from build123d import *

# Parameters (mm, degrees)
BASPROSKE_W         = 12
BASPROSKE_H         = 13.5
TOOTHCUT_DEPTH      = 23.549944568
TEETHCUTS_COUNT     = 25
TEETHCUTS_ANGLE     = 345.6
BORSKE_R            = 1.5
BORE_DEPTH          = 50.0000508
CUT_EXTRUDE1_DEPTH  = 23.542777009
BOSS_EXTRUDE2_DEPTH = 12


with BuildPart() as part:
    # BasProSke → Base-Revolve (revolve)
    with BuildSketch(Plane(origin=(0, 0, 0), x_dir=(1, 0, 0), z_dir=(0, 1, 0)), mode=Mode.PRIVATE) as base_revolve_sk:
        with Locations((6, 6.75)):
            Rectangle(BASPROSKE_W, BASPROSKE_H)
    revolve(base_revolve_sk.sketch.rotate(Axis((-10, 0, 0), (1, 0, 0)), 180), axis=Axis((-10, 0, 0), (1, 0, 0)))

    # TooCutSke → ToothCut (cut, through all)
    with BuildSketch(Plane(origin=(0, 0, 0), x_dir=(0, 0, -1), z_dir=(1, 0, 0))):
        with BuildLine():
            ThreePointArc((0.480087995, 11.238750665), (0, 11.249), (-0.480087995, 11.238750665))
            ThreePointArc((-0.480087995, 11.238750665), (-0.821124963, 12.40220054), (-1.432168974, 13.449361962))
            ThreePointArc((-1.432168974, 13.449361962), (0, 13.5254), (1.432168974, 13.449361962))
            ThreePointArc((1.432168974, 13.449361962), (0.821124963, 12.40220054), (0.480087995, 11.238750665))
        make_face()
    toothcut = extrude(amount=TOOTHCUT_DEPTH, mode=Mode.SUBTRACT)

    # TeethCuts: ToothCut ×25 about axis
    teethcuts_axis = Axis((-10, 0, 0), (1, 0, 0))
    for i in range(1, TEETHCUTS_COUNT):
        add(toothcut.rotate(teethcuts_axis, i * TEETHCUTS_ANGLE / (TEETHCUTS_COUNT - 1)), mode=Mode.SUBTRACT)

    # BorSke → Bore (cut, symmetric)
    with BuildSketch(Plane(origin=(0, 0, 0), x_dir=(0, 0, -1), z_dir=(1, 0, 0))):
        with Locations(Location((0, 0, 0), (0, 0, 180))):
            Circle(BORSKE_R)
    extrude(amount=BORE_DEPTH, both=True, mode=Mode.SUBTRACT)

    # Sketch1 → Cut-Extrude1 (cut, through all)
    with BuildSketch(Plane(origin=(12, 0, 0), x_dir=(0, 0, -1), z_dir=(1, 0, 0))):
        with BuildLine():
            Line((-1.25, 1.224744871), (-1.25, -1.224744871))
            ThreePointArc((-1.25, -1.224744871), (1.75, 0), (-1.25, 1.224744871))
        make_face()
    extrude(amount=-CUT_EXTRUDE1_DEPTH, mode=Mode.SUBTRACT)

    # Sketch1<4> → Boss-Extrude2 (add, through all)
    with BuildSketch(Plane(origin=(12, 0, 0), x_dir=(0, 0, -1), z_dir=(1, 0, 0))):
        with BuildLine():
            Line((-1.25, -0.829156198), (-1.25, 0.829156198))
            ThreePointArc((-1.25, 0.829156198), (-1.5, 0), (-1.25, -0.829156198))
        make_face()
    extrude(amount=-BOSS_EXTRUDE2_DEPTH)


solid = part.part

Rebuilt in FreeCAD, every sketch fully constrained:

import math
import FreeCAD as App
import Part
import Sketcher


def add_polygon(sketch, points):
    """Adds a closed chain of lines whose ends are joined by coincident constraints."""
    first, n = sketch.GeometryCount, len(points)
    for a, b in zip(points, points[1:] + points[:1]):
        sketch.addGeometry(Part.LineSegment(App.Vector(*a, 0), App.Vector(*b, 0)), False)
    for i in range(n):
        sketch.addConstraint(Sketcher.Constraint("Coincident", first + i, 2, first + (i + 1) % n, 1))

doc = App.newDocument("Part")
params = doc.addObject("Spreadsheet::Sheet", "Params")
for row, (alias, value) in enumerate([
    ("sketch1_width", "12 mm"),
    ("sketch1_height", "13.5 mm"),
    ("revolution_angle", "360 deg"),
    ("sketch2_radius", "5 mm"),
    ("sketch3_diameter", "3 mm"),
    ("pocket2_length", "100.000102 mm"),
    ("sketch4_radius", "1.75 mm"),
    ("sketch5_radius", "1.5 mm"),
    ("pad1_length", "12 mm"),
], start=1):
    params.set(f"A{row}", alias)
    params.set(f"B{row}", "=" + value)
    params.setAlias(f"B{row}", alias)

body = doc.addObject("PartDesign::Body", "Body")

# Sketch on XZ plane
sketch1 = body.newObject("Sketcher::SketchObject", "Sketch")
sketch1.AttachmentSupport = (doc.getObject("XZ_Plane"), [""])
sketch1.MapMode = "FlatFace"
add_polygon(sketch1, [(0, -13.5), (0, 0), (12, 0), (12, -13.5)])  # lines 0-3
sketch1.addConstraint([
    Sketcher.Constraint("Vertical", 0),
    Sketcher.Constraint("Horizontal", 1),
    Sketcher.Constraint("Vertical", 2),
    Sketcher.Constraint("Horizontal", 3),
    Sketcher.Constraint("Coincident", 0, 2, -1, 1),
    Sketcher.Constraint("DistanceX", 1, 1, 1, 2, 12.0),
    Sketcher.Constraint("DistanceY", 0, 1, 0, 2, 13.5),
])
sketch1.setExpression("Constraints[9]", "Params.sketch1_width")
sketch1.setExpression("Constraints[10]", "Params.sketch1_height")
revolution = body.newObject("PartDesign::Revolution", "Revolution")
revolution.Profile = sketch1
revolution.ReferenceAxis = (sketch1, ["H_Axis"])
revolution.setExpression("Angle", "Params.revolution_angle")

# Sketch on YZ plane
sketch2 = body.newObject("Sketcher::SketchObject", "Sketch001")
sketch2.AttachmentSupport = (doc.getObject("YZ_Plane"), [""])
sketch2.MapMode = "FlatFace"
sketch2.addGeometry([
    Part.ArcOfCircle(Part.Circle(App.Vector(0, 0, 0), App.Vector(0, 0, 1), 11.249), math.radians(-2.446028), math.radians(2.446028)),
    Part.ArcOfCircle(Part.Circle(App.Vector(10.424401, -5.413326, 0), App.Vector(0, 0, 1), 5), math.radians(52.771714), math.radians(80.626478)),
    Part.ArcOfCircle(Part.Circle(App.Vector(0, 0, 0), App.Vector(0, 0, 1), 13.5254), math.radians(-6.078294), math.radians(6.078294)),
    Part.ArcOfCircle(Part.Circle(App.Vector(10.424401, 5.413326, 0), App.Vector(0, 0, 1), 5), math.radians(-80.626478), math.radians(-52.771714)),
], False)
sketch2.addConstraint([
    Sketcher.Constraint("Coincident", 0, 1, 1, 2),
    Sketcher.Constraint("Coincident", 1, 1, 2, 1),
    Sketcher.Constraint("Coincident", 2, 2, 3, 2),
    Sketcher.Constraint("Coincident", 3, 1, 0, 2),
    Sketcher.Constraint("Coincident", 0, 3, -1, 1),
    Sketcher.Constraint("Coincident", 2, 3, -1, 1),
    Sketcher.Constraint("Equal", 1, 3),
    Sketcher.Constraint("Symmetric", 1, 3, 3, 3, -1),
    Sketcher.Constraint("Radius", 1, 5.0),
    Sketcher.Constraint("Radius", 0, 11.249),
    Sketcher.Constraint("Radius", 2, 13.5254),
    Sketcher.Constraint("DistanceX", -1, 1, 1, 3, 10.424401),
    Sketcher.Constraint("DistanceX", -1, 1, 0, 1, 11.238751),
])
sketch2.setExpression("Constraints[8]", "Params.sketch2_radius")
pocket1 = body.newObject("PartDesign::Pocket", "Pocket")
pocket1.Profile = sketch2
pocket1.Type = "ThroughAll"
pocket1.Reversed = True
doc.recompute()

polarpattern = body.newObject("PartDesign::PolarPattern", "PolarPattern")
polarpattern.Originals = [pocket1]
polarpattern.Axis = (doc.getObject("X_Axis"), [""])
polarpattern.Angle = 360
polarpattern.Occurrences = 25
body.Tip = polarpattern

# Sketch on YZ plane
sketch3 = body.newObject("Sketcher::SketchObject", "Sketch002")
sketch3.AttachmentSupport = (doc.getObject("YZ_Plane"), [""])
sketch3.MapMode = "FlatFace"
sketch3.addGeometry(Part.Circle(App.Vector(0, 0, 0), App.Vector(0, 0, 1), 1.5), False)
sketch3.addConstraint([
    Sketcher.Constraint("Coincident", 0, 3, -1, 1),
    Sketcher.Constraint("Diameter", 0, 3.0),
])
sketch3.setExpression("Constraints[1]", "Params.sketch3_diameter")
pocket2 = body.newObject("PartDesign::Pocket", "Pocket001")
pocket2.Profile = sketch3
pocket2.setExpression("Length", "Params.pocket2_length")
pocket2.Midplane = True

# Sketch on YZ plane
sketch4 = body.newObject("Sketcher::SketchObject", "Sketch003")
sketch4.AttachmentSupport = (doc.getObject("YZ_Plane"), [""])
sketch4.MapMode = "FlatFace"
sketch4.AttachmentOffset = App.Placement(App.Vector(0, 0, 12), App.Rotation())
sketch4.addGeometry([
    Part.LineSegment(App.Vector(1.224745, 1.25, 0), App.Vector(-1.224745, 1.25, 0)),
    Part.ArcOfCircle(Part.Circle(App.Vector(0, 0, 0), App.Vector(0, 0, 1), 1.75), math.radians(134.415309), math.radians(405.584691)),
], False)
sketch4.addConstraint([
    Sketcher.Constraint("Coincident", 0, 1, 1, 2),
    Sketcher.Constraint("Coincident", 1, 1, 0, 2),
    Sketcher.Constraint("Horizontal", 0),
    Sketcher.Constraint("Coincident", 1, 3, -1, 1),
    Sketcher.Constraint("Radius", 1, 1.75),
    Sketcher.Constraint("DistanceY", -1, 1, 0, 1, 1.25),
])
sketch4.setExpression("Constraints[4]", "Params.sketch4_radius")
pocket3 = body.newObject("PartDesign::Pocket", "Pocket002")
pocket3.Profile = sketch4
pocket3.Type = "ThroughAll"

# Sketch on YZ plane
sketch5 = body.newObject("Sketcher::SketchObject", "Sketch004")
sketch5.AttachmentSupport = (doc.getObject("YZ_Plane"), [""])
sketch5.MapMode = "FlatFace"
sketch5.AttachmentOffset = App.Placement(App.Vector(0, 0, 12), App.Rotation())
sketch5.addGeometry([
    Part.LineSegment(App.Vector(-0.829156, 1.25, 0), App.Vector(0.829156, 1.25, 0)),
    Part.ArcOfCircle(Part.Circle(App.Vector(0, 0, 0), App.Vector(0, 0, 1), 1.5), math.radians(56.44269), math.radians(123.55731)),
], False)
sketch5.addConstraint([
    Sketcher.Constraint("Coincident", 0, 1, 1, 2),
    Sketcher.Constraint("Coincident", 1, 1, 0, 2),
    Sketcher.Constraint("Horizontal", 0),
    Sketcher.Constraint("Coincident", 1, 3, -1, 1),
    Sketcher.Constraint("Radius", 1, 1.5),
    Sketcher.Constraint("DistanceY", -1, 1, 0, 1, 1.25),
])
sketch5.setExpression("Constraints[4]", "Params.sketch5_radius")
pad1 = body.newObject("PartDesign::Pad", "Pad")
pad1.Profile = sketch5
pad1.setExpression("Length", "Params.pad1_length")
pad1.Reversed = True

doc.recompute()
